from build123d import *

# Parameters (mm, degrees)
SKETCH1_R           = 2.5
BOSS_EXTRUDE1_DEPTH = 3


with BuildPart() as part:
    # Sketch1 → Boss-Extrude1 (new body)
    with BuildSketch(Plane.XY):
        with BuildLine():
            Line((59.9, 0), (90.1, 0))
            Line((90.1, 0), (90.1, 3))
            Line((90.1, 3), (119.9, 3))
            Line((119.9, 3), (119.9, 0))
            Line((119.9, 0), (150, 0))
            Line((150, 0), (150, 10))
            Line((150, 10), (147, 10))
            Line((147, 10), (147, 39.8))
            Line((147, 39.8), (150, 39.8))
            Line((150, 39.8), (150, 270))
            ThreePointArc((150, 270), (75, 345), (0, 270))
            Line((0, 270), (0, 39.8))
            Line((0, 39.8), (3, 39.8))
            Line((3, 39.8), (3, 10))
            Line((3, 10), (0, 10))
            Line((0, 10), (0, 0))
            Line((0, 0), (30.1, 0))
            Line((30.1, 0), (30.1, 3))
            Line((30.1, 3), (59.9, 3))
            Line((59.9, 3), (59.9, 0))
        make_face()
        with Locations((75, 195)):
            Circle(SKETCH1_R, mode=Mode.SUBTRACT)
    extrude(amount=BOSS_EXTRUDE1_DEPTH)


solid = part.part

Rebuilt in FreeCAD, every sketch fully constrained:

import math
import FreeCAD as App
import Part
import Sketcher

V = App.Vector

doc = App.newDocument("Part")
body = doc.addObject("PartDesign::Body", "Body")

# Sketch on XY plane
sketch1 = body.newObject("Sketcher::SketchObject", "Sketch")
sketch1.AttachmentSupport = (doc.getObject("XY_Plane"), [""])
sketch1.MapMode = "FlatFace"
sketch1.addGeometry(Part.LineSegment(V(59.9, 0, 0), V(90.1, 0, 0)), False)
sketch1.addGeometry(Part.LineSegment(V(90.1, 0, 0), V(90.1, 3, 0)), False)
sketch1.addGeometry(Part.LineSegment(V(90.1, 3, 0), V(119.9, 3, 0)), False)
sketch1.addGeometry(Part.LineSegment(V(119.9, 3, 0), V(119.9, 0, 0)), False)
sketch1.addGeometry(Part.LineSegment(V(119.9, 0, 0), V(150, 0, 0)), False)
sketch1.addGeometry(Part.LineSegment(V(150, 0, 0), V(150, 10, 0)), False)
sketch1.addGeometry(Part.LineSegment(V(150, 10, 0), V(147, 10, 0)), False)
sketch1.addGeometry(Part.LineSegment(V(147, 10, 0), V(147, 39.8, 0)), False)
sketch1.addGeometry(Part.LineSegment(V(147, 39.8, 0), V(150, 39.8, 0)), False)
sketch1.addGeometry(Part.LineSegment(V(150, 39.8, 0), V(150, 270, 0)), False)
sketch1.addGeometry(Part.ArcOfCircle(Part.Circle(V(75, 270, 0), V(0, 0, 1), 75), math.radians(0), math.radians(180)), False)
sketch1.addGeometry(Part.LineSegment(V(0, 270, 0), V(0, 39.8, 0)), False)
sketch1.addGeometry(Part.LineSegment(V(0, 39.8, 0), V(3, 39.8, 0)), False)
sketch1.addGeometry(Part.LineSegment(V(3, 39.8, 0), V(3, 10, 0)), False)
sketch1.addGeometry(Part.LineSegment(V(3, 10, 0), V(0, 10, 0)), False)
sketch1.addGeometry(Part.LineSegment(V(0, 10, 0), V(0, 0, 0)), False)
sketch1.addGeometry(Part.LineSegment(V(0, 0, 0), V(30.1, 0, 0)), False)
sketch1.addGeometry(Part.LineSegment(V(30.1, 0, 0), V(30.1, 3, 0)), False)
sketch1.addGeometry(Part.LineSegment(V(30.1, 3, 0), V(59.9, 3, 0)), False)
sketch1.addGeometry(Part.LineSegment(V(59.9, 3, 0), V(59.9, 0, 0)), False)
sketch1.addGeometry(Part.Circle(V(75, 195, 0), V(0, 0, 1), 2.5), False)
sketch1.addConstraint(Sketcher.Constraint("Coincident", 0, 2, 1, 1))
sketch1.addConstraint(Sketcher.Constraint("Coincident", 1, 2, 2, 1))
sketch1.addConstraint(Sketcher.Constraint("Coincident", 2, 2, 3, 1))
sketch1.addConstraint(Sketcher.Constraint("Coincident", 3, 2, 4, 1))
sketch1.addConstraint(Sketcher.Constraint("Coincident", 4, 2, 5, 1))
sketch1.addConstraint(Sketcher.Constraint("Coincident", 5, 2, 6, 1))
sketch1.addConstraint(Sketcher.Constraint("Coincident", 6, 2, 7, 1))
sketch1.addConstraint(Sketcher.Constraint("Coincident", 7, 2, 8, 1))
sketch1.addConstraint(Sketcher.Constraint("Coincident", 8, 2, 9, 1))
sketch1.addConstraint(Sketcher.Constraint("Tangent", 9, 2, 10, 1))
sketch1.addConstraint(Sketcher.Constraint("Tangent", 10, 2, 11, 1))
sketch1.addConstraint(Sketcher.Constraint("Coincident", 11, 2, 12, 1))
sketch1.addConstraint(Sketcher.Constraint("Coincident", 12, 2, 13, 1))
sketch1.addConstraint(Sketcher.Constraint("Coincident", 13, 2, 14, 1))
sketch1.addConstraint(Sketcher.Constraint("Coincident", 14, 2, 15, 1))
sketch1.addConstraint(Sketcher.Constraint("Coincident", 15, 2, 16, 1))
sketch1.addConstraint(Sketcher.Constraint("Coincident", 16, 2, 17, 1))
sketch1.addConstraint(Sketcher.Constraint("Coincident", 17, 2, 18, 1))
sketch1.addConstraint(Sketcher.Constraint("Coincident", 18, 2, 19, 1))
sketch1.addConstraint(Sketcher.Constraint("Coincident", 19, 2, 0, 1))
sketch1.addConstraint(Sketcher.Constraint("Horizontal", 0))
sketch1.addConstraint(Sketcher.Constraint("Vertical", 1))
sketch1.addConstraint(Sketcher.Constraint("Horizontal", 2))
sketch1.addConstraint(Sketcher.Constraint("Vertical", 3))
sketch1.addConstraint(Sketcher.Constraint("Horizontal", 4))
sketch1.addConstraint(Sketcher.Constraint("Vertical", 5))
sketch1.addConstraint(Sketcher.Constraint("Horizontal", 6))
sketch1.addConstraint(Sketcher.Constraint("Vertical", 7))
sketch1.addConstraint(Sketcher.Constraint("Horizontal", 8))
sketch1.addConstraint(Sketcher.Constraint("Vertical", 9))
sketch1.addConstraint(Sketcher.Constraint("Vertical", 11))
sketch1.addConstraint(Sketcher.Constraint("Horizontal", 12))
sketch1.addConstraint(Sketcher.Constraint("Vertical", 13))
sketch1.addConstraint(Sketcher.Constraint("Horizontal", 14))
sketch1.addConstraint(Sketcher.Constraint("Vertical", 15))
sketch1.addConstraint(Sketcher.Constraint("Horizontal", 16))
sketch1.addConstraint(Sketcher.Constraint("Vertical", 17))
sketch1.addConstraint(Sketcher.Constraint("Horizontal", 18))
sketch1.addConstraint(Sketcher.Constraint("Vertical", 19))
sketch1.addConstraint(Sketcher.Constraint("Coincident", 15, 2, -1, 1))
sketch1.addConstraint(Sketcher.Constraint("PointOnObject", 0, 2, -1))
sketch1.addConstraint(Sketcher.Constraint("PointOnObject", 3, 2, -1))
sketch1.addConstraint(Sketcher.Constraint("PointOnObject", 10, 2, -2))
sketch1.addConstraint(Sketcher.Constraint("Horizontal", 8, 2, 11, 2))
sketch1.addConstraint(Sketcher.Constraint("Horizontal", 6, 2, 13, 2))
sketch1.addConstraint(Sketcher.Constraint("Horizontal", 2, 2, 17, 2))
sketch1.addConstraint(Sketcher.Constraint("Vertical", 10, 3, 20, 3))
sketch1.addConstraint(Sketcher.Constraint("Vertical", 5, 2, 8, 2))
sketch1.addConstraint(Sketcher.Constraint("Equal", 8, 12))
sketch1.addConstraint(Sketcher.Constraint("Equal", 4, 16))
sketch1.addConstraint(Sketcher.Constraint("Equal", 2, 18))
sketch1.addConstraint(Sketcher.Constraint("Equal", 14, 1))
sketch1.addConstraint(Sketcher.Constraint("Equal", 18, 7))
sketch1.addConstraint(Sketcher.Constraint("Diameter", 20, 5.0))
sketch1.addConstraint(Sketcher.Constraint("Radius", 10, 75.0))
sketch1.addConstraint(Sketcher.Constraint("DistanceX", 6, 2, 6, 1, 3.0))
sketch1.addConstraint(Sketcher.Constraint("DistanceY", 5, 1, 5, 2, 10.0))
sketch1.addConstraint(Sketcher.Constraint("DistanceX", 0, 1, 0, 2, 30.2))
sketch1.addConstraint(Sketcher.Constraint("DistanceX", 2, 1, 2, 2, 29.8))
sketch1.addConstraint(Sketcher.Constraint("DistanceY", 9, 1, 9, 2, 230.2))
sketch1.addConstraint(Sketcher.Constraint("DistanceY", -1, 1, 20, 3, 195.0))
pad1 = body.newObject("PartDesign::Pad", "Pad")
pad1.Profile = sketch1
pad1.Length = 3

doc.recompute()
